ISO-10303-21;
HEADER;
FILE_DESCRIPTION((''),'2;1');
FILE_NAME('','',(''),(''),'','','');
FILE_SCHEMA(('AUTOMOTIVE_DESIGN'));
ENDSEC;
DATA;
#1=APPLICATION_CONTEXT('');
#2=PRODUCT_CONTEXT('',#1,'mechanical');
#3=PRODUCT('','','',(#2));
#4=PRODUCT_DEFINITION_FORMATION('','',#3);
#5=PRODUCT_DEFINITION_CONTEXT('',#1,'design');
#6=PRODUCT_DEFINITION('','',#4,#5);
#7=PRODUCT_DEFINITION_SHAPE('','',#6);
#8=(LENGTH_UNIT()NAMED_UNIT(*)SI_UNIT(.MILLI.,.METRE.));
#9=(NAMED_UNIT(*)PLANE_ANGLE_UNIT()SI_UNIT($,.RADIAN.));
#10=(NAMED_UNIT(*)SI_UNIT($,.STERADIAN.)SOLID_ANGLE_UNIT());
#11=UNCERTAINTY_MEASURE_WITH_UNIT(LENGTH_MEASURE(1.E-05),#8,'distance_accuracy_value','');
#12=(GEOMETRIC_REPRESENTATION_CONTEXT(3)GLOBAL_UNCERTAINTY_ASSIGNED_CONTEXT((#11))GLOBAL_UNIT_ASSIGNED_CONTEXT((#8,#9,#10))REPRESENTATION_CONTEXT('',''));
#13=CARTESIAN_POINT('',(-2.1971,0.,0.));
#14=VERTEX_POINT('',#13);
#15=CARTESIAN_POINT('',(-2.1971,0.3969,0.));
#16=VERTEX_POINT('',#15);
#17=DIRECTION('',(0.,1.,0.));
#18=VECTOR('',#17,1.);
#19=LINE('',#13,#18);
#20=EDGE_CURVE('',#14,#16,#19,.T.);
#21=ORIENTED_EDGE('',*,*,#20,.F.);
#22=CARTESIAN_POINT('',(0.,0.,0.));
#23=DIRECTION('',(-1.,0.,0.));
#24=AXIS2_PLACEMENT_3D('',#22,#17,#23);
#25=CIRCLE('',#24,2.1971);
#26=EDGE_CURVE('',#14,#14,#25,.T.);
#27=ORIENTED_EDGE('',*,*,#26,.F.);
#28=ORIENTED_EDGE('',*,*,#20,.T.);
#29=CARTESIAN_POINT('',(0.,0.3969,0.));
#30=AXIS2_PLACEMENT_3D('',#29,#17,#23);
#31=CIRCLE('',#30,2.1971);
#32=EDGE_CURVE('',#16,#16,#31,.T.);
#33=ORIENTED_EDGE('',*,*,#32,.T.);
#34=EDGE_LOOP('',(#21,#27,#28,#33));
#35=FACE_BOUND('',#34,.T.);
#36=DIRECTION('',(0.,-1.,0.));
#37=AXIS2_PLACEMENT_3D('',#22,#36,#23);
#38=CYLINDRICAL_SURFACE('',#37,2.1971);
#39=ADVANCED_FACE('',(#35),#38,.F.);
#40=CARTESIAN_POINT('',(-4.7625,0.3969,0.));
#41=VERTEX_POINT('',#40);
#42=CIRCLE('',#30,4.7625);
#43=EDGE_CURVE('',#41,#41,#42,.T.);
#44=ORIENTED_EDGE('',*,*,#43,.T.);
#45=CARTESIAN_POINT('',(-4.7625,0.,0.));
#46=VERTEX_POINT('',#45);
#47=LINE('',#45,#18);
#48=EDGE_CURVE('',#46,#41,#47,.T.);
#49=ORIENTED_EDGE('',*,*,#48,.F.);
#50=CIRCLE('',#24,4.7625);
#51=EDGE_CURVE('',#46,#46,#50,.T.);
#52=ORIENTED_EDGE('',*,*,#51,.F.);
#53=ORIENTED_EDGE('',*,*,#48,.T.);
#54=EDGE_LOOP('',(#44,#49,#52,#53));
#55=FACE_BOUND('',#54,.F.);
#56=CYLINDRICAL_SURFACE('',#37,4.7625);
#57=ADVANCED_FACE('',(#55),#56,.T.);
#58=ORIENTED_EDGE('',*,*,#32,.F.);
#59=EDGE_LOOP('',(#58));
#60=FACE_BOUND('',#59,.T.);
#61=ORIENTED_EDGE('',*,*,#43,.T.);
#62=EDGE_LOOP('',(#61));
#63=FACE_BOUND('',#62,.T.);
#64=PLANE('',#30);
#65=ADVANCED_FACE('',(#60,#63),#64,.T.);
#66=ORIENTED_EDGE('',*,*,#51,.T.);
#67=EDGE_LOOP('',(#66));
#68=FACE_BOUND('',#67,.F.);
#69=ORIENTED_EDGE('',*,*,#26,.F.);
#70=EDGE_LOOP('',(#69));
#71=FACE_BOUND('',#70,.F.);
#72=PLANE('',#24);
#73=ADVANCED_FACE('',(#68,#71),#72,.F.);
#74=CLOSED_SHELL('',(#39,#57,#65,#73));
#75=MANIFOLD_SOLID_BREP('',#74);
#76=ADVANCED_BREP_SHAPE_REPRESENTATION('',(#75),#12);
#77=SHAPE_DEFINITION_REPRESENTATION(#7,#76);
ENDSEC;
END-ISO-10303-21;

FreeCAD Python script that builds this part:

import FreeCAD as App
import Part
import Sketcher
from FreeCAD import Vector
Q = App.Units.Quantity

doc = App.newDocument("Part")
body = doc.addObject("PartDesign::Body", "Body")

sketch1 = body.newObject("Sketcher::SketchObject", "Sketch")
sketch1.AttachmentSupport = (doc.getObject("XZ_Plane"), [""])
sketch1.MapMode = "FlatFace"
sketch1.addGeometry([
    Part.Circle(Vector(0, 0, 0), Vector(0, 0, 1), 4.7625),
    Part.Circle(Vector(0, 0, 0), Vector(0, 0, 1), 2.1971),
], False)
sketch1.addConstraint([
    Sketcher.Constraint("Coincident", 0, 3, -1, 1),
    Sketcher.Constraint("Coincident", 1, 3, -1, 1),
    Sketcher.Constraint("Diameter", 0, Q("0.375 in")),
    Sketcher.Constraint("Diameter", 1, Q("0.173 in")),
])
pad1 = body.newObject("PartDesign::Pad", "Pad")
pad1.Profile = sketch1
pad1.Length = Q("0.015626 in")
pad1.Reversed = True

doc.recompute()
